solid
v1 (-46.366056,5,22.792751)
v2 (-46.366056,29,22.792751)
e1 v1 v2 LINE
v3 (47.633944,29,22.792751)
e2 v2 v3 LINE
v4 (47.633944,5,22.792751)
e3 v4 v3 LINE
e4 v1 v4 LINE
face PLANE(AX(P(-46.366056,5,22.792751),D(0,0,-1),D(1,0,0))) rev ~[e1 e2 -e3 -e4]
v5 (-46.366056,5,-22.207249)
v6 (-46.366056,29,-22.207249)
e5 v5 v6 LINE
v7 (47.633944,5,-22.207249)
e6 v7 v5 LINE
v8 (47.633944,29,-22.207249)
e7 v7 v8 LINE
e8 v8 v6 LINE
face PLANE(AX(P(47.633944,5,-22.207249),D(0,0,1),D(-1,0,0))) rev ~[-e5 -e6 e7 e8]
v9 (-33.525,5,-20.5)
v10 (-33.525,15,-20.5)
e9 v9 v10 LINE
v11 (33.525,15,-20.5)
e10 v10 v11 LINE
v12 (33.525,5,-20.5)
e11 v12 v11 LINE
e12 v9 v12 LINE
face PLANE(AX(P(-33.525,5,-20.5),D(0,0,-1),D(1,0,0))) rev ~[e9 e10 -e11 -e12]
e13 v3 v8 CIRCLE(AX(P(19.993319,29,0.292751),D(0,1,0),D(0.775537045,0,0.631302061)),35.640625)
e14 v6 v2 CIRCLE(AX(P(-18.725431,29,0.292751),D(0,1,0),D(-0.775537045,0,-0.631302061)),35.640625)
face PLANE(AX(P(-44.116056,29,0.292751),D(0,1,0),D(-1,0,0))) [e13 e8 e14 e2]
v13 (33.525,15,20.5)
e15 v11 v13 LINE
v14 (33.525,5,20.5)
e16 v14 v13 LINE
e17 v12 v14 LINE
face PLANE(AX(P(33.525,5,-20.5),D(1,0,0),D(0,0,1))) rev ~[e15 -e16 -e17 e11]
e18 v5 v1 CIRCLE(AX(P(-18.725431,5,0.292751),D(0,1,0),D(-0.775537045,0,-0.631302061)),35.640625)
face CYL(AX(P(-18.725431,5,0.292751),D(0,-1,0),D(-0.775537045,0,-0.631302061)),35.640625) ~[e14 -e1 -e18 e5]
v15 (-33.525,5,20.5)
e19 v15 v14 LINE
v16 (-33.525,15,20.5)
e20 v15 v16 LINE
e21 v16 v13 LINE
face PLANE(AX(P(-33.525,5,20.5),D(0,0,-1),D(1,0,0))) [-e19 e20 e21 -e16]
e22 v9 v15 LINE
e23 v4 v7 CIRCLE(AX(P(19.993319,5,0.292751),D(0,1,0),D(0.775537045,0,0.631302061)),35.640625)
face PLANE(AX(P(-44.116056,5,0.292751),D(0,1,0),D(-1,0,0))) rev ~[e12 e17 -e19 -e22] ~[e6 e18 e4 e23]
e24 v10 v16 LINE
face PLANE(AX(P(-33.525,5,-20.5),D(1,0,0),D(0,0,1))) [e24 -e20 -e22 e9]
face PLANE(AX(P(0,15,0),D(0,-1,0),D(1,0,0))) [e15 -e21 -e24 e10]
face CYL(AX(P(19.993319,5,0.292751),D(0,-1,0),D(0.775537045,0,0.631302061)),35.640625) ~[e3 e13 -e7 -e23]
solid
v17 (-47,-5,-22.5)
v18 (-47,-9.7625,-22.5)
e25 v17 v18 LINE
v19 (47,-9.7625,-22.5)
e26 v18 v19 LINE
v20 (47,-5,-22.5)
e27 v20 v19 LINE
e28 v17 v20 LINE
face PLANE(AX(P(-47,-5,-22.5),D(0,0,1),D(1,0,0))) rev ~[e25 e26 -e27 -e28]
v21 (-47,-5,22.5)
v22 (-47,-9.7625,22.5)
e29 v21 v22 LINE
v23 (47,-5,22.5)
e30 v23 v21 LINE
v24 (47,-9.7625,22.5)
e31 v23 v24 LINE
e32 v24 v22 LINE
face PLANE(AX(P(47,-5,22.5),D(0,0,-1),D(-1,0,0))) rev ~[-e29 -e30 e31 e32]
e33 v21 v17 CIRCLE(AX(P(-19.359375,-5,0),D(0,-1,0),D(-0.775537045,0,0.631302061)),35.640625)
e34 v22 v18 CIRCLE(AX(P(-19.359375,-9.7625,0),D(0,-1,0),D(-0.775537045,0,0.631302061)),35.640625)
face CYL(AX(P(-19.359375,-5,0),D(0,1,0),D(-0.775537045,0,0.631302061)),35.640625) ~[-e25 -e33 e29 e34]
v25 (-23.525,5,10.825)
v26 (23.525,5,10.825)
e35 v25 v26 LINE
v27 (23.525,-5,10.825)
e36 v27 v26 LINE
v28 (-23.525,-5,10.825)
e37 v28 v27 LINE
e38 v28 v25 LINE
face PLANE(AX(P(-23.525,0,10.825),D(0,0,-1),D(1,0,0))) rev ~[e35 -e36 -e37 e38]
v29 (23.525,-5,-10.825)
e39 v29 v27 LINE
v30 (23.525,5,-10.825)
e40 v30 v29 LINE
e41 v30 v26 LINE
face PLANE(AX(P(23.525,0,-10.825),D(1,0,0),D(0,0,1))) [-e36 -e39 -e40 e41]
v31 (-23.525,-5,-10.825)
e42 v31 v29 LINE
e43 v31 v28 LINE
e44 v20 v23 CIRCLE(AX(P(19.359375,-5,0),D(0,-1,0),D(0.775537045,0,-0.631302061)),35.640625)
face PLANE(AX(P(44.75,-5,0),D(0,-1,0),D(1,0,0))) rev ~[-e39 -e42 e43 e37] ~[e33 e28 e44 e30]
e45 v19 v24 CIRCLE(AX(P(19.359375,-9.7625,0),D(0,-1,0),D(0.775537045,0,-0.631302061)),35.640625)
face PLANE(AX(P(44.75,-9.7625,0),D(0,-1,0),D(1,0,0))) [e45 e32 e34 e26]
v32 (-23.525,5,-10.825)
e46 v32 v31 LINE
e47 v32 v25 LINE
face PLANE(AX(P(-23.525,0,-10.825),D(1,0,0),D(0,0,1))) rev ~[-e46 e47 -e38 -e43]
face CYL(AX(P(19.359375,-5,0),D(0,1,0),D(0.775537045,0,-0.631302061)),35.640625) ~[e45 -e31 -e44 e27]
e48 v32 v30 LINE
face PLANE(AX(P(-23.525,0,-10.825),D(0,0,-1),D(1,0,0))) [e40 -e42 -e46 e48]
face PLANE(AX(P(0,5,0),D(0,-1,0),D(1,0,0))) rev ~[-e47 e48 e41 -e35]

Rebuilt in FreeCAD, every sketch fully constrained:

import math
import FreeCAD as App
import Part
import Sketcher

V = App.Vector
Q = App.Units.Quantity

doc = App.newDocument("Part")
body = doc.addObject("PartDesign::Body", "Body")

# Sketch on XZ plane
sketch1 = body.newObject("Sketcher::SketchObject", "Sketch")
sketch1.AttachmentSupport = (doc.getObject("XZ_Plane"), [""])
sketch1.MapMode = "FlatFace"
sketch1.addGeometry([
    Part.LineSegment(V(-24, 11, 0), V(-24, -11, 0)),
    Part.LineSegment(V(-24, -11, 0), V(24, -11, 0)),
    Part.LineSegment(V(24, -11, 0), V(24, 11, 0)),
    Part.LineSegment(V(24, 11, 0), V(-24, 11, 0)),
], False)
sketch1.addConstraint([
    Sketcher.Constraint("Coincident", 0, 2, 1, 1),
    Sketcher.Constraint("Coincident", 1, 2, 2, 1),
    Sketcher.Constraint("Coincident", 2, 2, 3, 1),
    Sketcher.Constraint("Coincident", 3, 2, 0, 1),
    Sketcher.Constraint("Vertical", 0),
    Sketcher.Constraint("Horizontal", 1),
    Sketcher.Constraint("Vertical", 2),
    Sketcher.Constraint("Horizontal", 3),
    Sketcher.Constraint("Symmetric", 0, 2, 2, 2, -1, 1),
    Sketcher.Constraint("DistanceX", 1, 1, 1, 2, Q("47.05 mm")),
    Sketcher.Constraint("DistanceY", 0, 2, 0, 1, Q("21.65 mm")),
])
pad1 = body.newObject("PartDesign::Pad", "Pad")
pad1.Profile = sketch1
pad1.Length = 10
pad1.Midplane = True

# Sketch on XZ plane
sketch2 = body.newObject("Sketcher::SketchObject", "Sketch001")
sketch2.AttachmentSupport = (doc.getObject("XZ_Plane"), [""])
sketch2.MapMode = "FlatFace"
sketch2.AttachmentOffset = App.Placement(V(0, 0, 5), App.Rotation())
sketch2.addGeometry([
    Part.ArcOfCircle(Part.Circle(V(19, 0, 0), V(0, 0, 1), 36), math.radians(-39), math.radians(39)),
    Part.LineSegment(V(47, 22, 0), V(-47, 22, 0)),
    Part.ArcOfCircle(Part.Circle(V(-19, 0, 0), V(0, 0, 1), 36), math.radians(141), math.radians(219)),
    Part.LineSegment(V(-47, -22, 0), V(47, -22, 0)),
], False)
sketch2.addConstraint([
    Sketcher.Constraint("Coincident", 0, 2, 1, 1),
    Sketcher.Constraint("Coincident", 1, 2, 2, 1),
    Sketcher.Constraint("Coincident", 2, 2, 3, 1),
    Sketcher.Constraint("Coincident", 3, 2, 0, 1),
    Sketcher.Constraint("Horizontal", 1),
    Sketcher.Constraint("Horizontal", 3),
    Sketcher.Constraint("Equal", 0, 2),
    Sketcher.Constraint("Symmetric", 0, 3, 2, 3, -1, 1),
    Sketcher.Constraint("Symmetric", 1, 2, 2, 2, -1),
    Sketcher.Constraint("DistanceX", 1, 2, 1, 1, Q("94 mm")),
    Sketcher.Constraint("DistanceY", 2, 2, 1, 2, Q("45 mm")),
    Sketcher.Constraint("Radius", 0, Q("35.640625 mm")),
])
pad2 = body.newObject("PartDesign::Pad", "Pad001")
pad2.Profile = sketch2
pad2.Length = 4.7625
body2 = doc.addObject("PartDesign::Body", "Body001")

# Sketch on XZ plane
sketch3 = body2.newObject("Sketcher::SketchObject", "Sketch002")
sketch3.AttachmentSupport = (doc.getObject("XZ_Plane001"), [""])
sketch3.MapMode = "FlatFace"
sketch3.AttachmentOffset = App.Placement(V(0, 0, -5), App.Rotation())
sketch3.addGeometry([
    Part.ArcOfCircle(Part.Circle(V(-19, 0, 0), V(0, 0, 1), 36), math.radians(141), math.radians(219)),
    Part.LineSegment(V(-46, 23, 0), V(48, 23, 0)),
    Part.ArcOfCircle(Part.Circle(V(20, 0, 0), V(0, 0, 1), 36), math.radians(-39), math.radians(39)),
    Part.LineSegment(V(48, -22, 0), V(-46, -22, 0)),
], False)
sketch3.addConstraint([
    Sketcher.Constraint("Coincident", 0, 1, 1, 1),
    Sketcher.Constraint("Coincident", 1, 2, 2, 2),
    Sketcher.Constraint("Coincident", 2, 1, 3, 1),
    Sketcher.Constraint("Coincident", 3, 2, 0, 2),
    Sketcher.Constraint("Horizontal", 1),
    Sketcher.Constraint("Horizontal", 3),
    Sketcher.Constraint("Equal", 0, 2),
    Sketcher.Constraint("Horizontal", 0, 3, 2, 3),
    Sketcher.Constraint("Vertical", 1, 2, 2, 1),
    Sketcher.Constraint("DistanceX", 1, 1, 1, 2, Q("94 mm")),
    Sketcher.Constraint("DistanceY", 2, 1, 1, 2, Q("45 mm")),
    Sketcher.Constraint("Radius", 0, Q("35.640625 mm")),
    Sketcher.Constraint("DistanceX", 0, 3, -1, 1, Q("18.725431 mm")),
    Sketcher.Constraint("DistanceY", -1, 1, 0, 3, Q("0.292751 mm")),
])
pad3 = body2.newObject("PartDesign::Pad", "Pad002")
pad3.Profile = sketch3
pad3.Length = 24
pad3.Reversed = True

# Sketch on XZ plane
sketch4 = body2.newObject("Sketcher::SketchObject", "Sketch003")
sketch4.AttachmentSupport = (doc.getObject("XZ_Plane001"), [""])
sketch4.MapMode = "FlatFace"
sketch4.AttachmentOffset = App.Placement(V(0, 0, -5), App.Rotation())
sketch4.addGeometry([
    Part.LineSegment(V(-34, 20, 0), V(-34, -20, 0)),
    Part.LineSegment(V(-34, -20, 0), V(34, -20, 0)),
    Part.LineSegment(V(34, -20, 0), V(34, 20, 0)),
    Part.LineSegment(V(34, 20, 0), V(-34, 20, 0)),
], False)
sketch4.addConstraint([
    Sketcher.Constraint("Coincident", 0, 2, 1, 1),
    Sketcher.Constraint("Coincident", 1, 2, 2, 1),
    Sketcher.Constraint("Coincident", 2, 2, 3, 1),
    Sketcher.Constraint("Coincident", 3, 2, 0, 1),
    Sketcher.Constraint("Vertical", 0),
    Sketcher.Constraint("Horizontal", 1),
    Sketcher.Constraint("Vertical", 2),
    Sketcher.Constraint("Horizontal", 3),
    Sketcher.Constraint("Symmetric", 0, 2, 2, 2, -1, 1),
    Sketcher.Constraint("DistanceY", 0, 2, 0, 1, Q("41 mm")),
    Sketcher.Constraint("DistanceX", 1, 1, 1, 2, Q("67.05 mm")),
])
pocket1 = body2.newObject("PartDesign::Pocket", "Pocket")
pocket1.Profile = sketch4
pocket1.Length = 10

doc.recompute()
